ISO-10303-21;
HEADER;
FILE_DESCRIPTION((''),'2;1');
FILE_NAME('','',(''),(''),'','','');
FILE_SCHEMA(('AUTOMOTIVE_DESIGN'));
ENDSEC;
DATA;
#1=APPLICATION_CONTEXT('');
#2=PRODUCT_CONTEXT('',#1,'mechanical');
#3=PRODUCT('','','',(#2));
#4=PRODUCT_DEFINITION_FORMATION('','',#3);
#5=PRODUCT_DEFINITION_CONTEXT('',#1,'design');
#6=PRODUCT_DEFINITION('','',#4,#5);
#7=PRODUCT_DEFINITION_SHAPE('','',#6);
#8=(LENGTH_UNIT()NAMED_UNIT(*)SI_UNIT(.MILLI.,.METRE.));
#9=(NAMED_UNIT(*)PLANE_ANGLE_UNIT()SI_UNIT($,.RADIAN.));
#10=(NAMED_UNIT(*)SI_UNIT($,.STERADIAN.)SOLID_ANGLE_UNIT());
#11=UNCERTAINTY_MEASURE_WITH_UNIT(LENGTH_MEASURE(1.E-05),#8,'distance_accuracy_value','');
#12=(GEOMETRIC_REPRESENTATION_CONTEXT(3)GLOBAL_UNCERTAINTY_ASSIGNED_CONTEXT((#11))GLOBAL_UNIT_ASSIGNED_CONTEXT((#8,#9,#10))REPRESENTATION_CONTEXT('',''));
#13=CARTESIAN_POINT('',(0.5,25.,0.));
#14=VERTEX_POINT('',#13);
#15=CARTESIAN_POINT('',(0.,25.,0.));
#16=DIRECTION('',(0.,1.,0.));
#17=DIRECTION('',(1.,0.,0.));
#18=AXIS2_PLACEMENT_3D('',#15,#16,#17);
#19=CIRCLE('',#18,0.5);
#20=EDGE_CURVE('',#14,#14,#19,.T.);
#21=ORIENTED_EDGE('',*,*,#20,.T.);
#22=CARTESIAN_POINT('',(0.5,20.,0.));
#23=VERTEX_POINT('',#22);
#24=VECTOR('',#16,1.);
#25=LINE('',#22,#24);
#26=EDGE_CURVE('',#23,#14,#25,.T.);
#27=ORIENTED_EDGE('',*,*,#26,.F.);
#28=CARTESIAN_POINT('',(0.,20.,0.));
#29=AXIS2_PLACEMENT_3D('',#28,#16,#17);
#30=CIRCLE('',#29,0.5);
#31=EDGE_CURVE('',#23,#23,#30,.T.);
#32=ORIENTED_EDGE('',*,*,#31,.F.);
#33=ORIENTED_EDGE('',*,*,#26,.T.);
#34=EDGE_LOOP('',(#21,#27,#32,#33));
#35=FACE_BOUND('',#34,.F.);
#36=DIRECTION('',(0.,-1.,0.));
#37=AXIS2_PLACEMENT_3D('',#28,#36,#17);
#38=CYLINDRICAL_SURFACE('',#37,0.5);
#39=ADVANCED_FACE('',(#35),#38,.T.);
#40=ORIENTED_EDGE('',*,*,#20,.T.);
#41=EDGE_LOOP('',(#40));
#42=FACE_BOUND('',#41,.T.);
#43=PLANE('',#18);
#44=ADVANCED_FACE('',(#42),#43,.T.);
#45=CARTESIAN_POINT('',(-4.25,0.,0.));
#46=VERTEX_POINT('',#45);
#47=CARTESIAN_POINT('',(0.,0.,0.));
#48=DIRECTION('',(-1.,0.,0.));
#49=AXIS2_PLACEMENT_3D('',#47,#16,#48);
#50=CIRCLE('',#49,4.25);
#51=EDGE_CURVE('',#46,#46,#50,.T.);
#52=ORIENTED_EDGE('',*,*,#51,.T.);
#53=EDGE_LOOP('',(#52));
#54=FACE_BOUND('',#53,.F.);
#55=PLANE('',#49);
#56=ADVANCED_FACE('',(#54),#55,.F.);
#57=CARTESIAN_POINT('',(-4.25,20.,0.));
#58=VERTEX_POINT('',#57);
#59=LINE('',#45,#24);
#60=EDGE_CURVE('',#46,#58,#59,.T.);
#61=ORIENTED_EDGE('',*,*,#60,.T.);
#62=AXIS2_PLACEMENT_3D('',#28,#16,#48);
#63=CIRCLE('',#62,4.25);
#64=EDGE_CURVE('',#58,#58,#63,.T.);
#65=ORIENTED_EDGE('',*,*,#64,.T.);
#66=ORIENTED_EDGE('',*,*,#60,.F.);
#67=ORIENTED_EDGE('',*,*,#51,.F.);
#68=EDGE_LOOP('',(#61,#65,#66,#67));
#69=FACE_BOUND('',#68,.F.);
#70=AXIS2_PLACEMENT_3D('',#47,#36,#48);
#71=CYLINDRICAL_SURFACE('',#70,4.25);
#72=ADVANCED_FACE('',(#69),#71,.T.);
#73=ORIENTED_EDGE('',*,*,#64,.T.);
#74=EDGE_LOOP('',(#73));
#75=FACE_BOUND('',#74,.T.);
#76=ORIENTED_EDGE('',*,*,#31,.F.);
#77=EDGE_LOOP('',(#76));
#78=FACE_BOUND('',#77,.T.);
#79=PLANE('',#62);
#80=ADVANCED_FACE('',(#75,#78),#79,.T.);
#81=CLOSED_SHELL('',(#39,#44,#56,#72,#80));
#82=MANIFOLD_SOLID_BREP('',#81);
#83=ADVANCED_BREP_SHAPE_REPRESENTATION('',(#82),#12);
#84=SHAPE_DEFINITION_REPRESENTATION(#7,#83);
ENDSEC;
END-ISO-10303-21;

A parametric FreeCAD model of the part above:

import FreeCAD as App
import Part
import Sketcher

V = App.Vector
Q = App.Units.Quantity

doc = App.newDocument("Part")
body = doc.addObject("PartDesign::Body", "Body")

# Sketch on XZ plane
sketch1 = doc.addObject("Sketcher::SketchObject", "Sketch")
body.addObject(sketch1)
sketch1.AttachmentSupport = (doc.XZ_Plane, [""])
sketch1.MapMode = "FlatFace"
sketch1.addGeometry(Part.Circle(V(0, 0, 0), V(0, 0, 1), 4.25), False)
sketch1.addConstraint(Sketcher.Constraint("Coincident", 0, 3, -1, 1))
sketch1.addConstraint(Sketcher.Constraint("Diameter", 0, Q("8.5 mm")))
pad1 = doc.addObject("PartDesign::Pad", "Pad")
body.addObject(pad1)
pad1.Profile = sketch1
pad1.Length = 20
pad1.Reversed = True

# Sketch on XZ plane
sketch2 = doc.addObject("Sketcher::SketchObject", "Sketch001")
body.addObject(sketch2)
sketch2.AttachmentSupport = (doc.XZ_Plane, [""])
sketch2.MapMode = "FlatFace"
sketch2.AttachmentOffset = App.Placement(V(0, 0, -20), App.Rotation())
sketch2.addGeometry(Part.Circle(V(0, 0, 0), V(0, 0, 1), 0.5), False)
sketch2.addConstraint(Sketcher.Constraint("Coincident", 0, 3, -1, 1))
sketch2.addConstraint(Sketcher.Constraint("Diameter", 0, Q("1 mm")))
pad2 = doc.addObject("PartDesign::Pad", "Pad001")
body.addObject(pad2)
pad2.Profile = sketch2
pad2.Length = 5
pad2.Reversed = True

doc.recompute()
